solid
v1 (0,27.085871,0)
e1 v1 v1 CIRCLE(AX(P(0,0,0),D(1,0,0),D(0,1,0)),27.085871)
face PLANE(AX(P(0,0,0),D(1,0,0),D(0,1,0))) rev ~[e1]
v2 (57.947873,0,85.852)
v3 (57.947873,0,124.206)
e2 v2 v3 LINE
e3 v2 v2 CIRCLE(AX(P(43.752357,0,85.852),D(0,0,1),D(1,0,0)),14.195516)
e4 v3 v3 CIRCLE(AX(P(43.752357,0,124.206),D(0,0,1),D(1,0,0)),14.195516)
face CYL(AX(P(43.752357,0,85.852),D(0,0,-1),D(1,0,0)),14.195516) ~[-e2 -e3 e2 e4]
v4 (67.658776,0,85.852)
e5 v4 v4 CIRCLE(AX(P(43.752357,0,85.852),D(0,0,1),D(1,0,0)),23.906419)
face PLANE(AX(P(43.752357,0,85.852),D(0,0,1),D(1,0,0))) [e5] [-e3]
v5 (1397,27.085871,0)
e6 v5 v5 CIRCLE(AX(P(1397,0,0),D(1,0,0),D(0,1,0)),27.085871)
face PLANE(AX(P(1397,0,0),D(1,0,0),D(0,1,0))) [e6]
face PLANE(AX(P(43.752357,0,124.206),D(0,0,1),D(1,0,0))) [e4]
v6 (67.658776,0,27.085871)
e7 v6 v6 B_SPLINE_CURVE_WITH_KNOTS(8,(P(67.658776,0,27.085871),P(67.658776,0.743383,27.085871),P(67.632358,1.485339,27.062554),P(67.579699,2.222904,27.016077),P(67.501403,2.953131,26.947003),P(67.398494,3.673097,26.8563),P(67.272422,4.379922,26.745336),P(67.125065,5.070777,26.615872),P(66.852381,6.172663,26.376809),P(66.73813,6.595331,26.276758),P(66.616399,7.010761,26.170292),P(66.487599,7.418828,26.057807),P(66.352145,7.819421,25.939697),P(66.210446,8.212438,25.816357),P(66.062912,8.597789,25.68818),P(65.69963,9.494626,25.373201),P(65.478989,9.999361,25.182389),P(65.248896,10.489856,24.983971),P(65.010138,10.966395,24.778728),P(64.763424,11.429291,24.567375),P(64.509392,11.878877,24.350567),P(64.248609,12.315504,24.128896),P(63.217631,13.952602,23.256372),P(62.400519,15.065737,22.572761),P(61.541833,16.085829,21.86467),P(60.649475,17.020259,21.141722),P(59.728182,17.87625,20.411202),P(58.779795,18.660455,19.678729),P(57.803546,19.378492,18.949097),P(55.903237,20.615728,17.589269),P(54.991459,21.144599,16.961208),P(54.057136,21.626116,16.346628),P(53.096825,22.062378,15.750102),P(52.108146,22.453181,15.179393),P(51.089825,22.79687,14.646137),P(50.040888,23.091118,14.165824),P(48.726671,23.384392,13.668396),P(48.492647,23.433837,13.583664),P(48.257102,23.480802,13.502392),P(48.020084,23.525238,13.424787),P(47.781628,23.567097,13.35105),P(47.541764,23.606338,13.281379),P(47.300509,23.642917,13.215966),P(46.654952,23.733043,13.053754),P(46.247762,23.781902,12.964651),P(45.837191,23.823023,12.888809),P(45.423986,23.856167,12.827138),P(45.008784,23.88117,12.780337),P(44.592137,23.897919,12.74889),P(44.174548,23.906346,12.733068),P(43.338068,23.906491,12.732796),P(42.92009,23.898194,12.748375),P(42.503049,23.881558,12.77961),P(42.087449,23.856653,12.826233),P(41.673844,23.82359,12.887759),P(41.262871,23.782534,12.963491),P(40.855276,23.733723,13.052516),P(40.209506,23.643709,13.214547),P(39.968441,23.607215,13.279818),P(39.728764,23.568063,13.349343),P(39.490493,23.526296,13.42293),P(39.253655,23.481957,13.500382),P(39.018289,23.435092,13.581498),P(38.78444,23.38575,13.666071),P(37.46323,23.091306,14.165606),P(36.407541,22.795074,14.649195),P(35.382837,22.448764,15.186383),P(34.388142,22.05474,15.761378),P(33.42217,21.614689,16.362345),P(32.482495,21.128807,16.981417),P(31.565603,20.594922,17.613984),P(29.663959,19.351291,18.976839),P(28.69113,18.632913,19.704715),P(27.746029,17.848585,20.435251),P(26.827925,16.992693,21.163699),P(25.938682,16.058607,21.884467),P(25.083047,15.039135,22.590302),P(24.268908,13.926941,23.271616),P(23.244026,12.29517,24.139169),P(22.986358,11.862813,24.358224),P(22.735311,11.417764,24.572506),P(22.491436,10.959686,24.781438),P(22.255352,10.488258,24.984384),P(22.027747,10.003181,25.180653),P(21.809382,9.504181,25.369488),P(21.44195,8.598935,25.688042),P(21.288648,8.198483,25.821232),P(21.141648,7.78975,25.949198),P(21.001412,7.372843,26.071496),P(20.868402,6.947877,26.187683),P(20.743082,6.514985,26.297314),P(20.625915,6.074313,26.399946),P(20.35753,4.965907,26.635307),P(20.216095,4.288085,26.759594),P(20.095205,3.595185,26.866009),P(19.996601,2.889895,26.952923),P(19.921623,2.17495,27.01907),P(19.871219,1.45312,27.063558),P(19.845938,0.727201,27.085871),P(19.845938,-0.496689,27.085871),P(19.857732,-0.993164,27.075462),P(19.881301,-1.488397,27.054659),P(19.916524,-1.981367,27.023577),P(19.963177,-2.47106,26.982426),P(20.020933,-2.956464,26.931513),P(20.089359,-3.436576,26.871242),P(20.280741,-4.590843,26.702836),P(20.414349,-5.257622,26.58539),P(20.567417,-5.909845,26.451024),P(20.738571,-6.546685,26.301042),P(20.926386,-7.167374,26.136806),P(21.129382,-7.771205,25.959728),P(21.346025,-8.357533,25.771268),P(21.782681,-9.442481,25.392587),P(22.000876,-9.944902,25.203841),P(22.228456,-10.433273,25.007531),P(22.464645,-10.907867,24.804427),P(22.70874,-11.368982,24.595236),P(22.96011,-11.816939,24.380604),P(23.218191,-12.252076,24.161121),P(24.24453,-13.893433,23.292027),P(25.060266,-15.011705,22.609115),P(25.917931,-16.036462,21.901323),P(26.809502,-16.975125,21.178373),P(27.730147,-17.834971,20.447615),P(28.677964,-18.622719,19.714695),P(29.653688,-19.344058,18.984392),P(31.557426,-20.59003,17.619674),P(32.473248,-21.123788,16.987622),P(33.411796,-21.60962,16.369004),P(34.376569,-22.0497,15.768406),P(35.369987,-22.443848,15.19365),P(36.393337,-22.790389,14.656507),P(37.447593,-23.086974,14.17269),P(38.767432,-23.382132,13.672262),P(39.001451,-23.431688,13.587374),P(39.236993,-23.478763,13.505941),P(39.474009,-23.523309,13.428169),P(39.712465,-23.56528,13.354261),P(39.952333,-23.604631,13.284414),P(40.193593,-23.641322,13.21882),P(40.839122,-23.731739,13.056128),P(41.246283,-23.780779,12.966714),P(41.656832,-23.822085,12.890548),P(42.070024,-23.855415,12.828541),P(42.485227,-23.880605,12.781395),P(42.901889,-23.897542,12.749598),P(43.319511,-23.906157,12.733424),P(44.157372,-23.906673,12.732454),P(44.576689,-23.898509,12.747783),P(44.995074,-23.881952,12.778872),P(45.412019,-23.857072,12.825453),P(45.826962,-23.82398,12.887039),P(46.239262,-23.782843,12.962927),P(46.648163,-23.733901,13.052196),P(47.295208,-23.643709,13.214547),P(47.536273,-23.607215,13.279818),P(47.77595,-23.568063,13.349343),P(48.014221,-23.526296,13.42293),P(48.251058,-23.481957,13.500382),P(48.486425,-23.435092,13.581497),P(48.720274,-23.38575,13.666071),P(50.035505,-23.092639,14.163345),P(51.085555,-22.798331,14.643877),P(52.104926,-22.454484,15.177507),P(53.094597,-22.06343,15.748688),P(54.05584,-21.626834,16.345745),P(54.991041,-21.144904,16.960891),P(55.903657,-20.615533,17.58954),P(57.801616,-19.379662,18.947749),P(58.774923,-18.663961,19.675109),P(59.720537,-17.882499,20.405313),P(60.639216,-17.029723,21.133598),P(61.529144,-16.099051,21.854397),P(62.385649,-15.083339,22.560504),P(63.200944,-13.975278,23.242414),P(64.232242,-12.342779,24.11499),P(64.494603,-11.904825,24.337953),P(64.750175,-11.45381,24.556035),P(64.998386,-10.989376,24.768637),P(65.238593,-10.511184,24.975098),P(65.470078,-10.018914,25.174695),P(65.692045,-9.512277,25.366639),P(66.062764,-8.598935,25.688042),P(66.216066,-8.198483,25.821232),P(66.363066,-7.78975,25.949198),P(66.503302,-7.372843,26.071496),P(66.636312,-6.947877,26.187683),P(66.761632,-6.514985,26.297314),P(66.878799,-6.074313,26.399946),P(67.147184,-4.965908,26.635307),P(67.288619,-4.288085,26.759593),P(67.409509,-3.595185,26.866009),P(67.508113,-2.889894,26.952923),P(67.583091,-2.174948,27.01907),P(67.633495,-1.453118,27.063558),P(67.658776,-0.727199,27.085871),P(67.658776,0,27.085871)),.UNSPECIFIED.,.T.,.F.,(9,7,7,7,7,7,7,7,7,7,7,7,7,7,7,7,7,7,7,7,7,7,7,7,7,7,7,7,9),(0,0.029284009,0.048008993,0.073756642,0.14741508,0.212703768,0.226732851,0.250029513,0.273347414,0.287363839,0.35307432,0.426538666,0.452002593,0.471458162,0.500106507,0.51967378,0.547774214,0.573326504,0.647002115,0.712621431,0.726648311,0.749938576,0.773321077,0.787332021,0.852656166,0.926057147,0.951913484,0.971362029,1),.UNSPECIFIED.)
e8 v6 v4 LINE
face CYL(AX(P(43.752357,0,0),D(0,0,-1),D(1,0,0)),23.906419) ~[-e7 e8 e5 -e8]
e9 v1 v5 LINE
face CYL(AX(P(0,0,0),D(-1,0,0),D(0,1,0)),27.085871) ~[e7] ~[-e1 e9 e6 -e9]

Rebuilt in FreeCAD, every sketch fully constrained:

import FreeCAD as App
import Part
import Sketcher

V = App.Vector
Q = App.Units.Quantity

doc = App.newDocument("Part")
body = doc.addObject("PartDesign::Body", "Body")

# Sketch on YZ plane
sketch1 = body.newObject("Sketcher::SketchObject", "Sketch")
sketch1.AttachmentSupport = (doc.getObject("YZ_Plane"), [""])
sketch1.MapMode = "FlatFace"
sketch1.addGeometry(Part.Circle(V(0, 0, 0), V(0, 0, 1), 27), False)
sketch1.addConstraint([
    Sketcher.Constraint("Coincident", 0, 3, -1, 1),
    Sketcher.Constraint("Diameter", 0, Q("54.171742 mm")),
])
pad1 = body.newObject("PartDesign::Pad", "Pad")
pad1.Profile = sketch1
pad1.Length = Q("55 in")

# Sketch on XY plane
sketch2 = body.newObject("Sketcher::SketchObject", "Sketch001")
sketch2.AttachmentSupport = (doc.getObject("XY_Plane"), [""])
sketch2.MapMode = "FlatFace"
sketch2.addGeometry(Part.Circle(V(44, 0, 0), V(0, 0, 1), 24), False)
sketch2.addConstraint([
    Sketcher.Constraint("PointOnObject", 0, 3, -1),
    Sketcher.Constraint("Diameter", 0, Q("47.812838 mm")),
    Sketcher.Constraint("DistanceX", -1, 1, 0, 3, Q("43.752357 mm")),
])
pad2 = body.newObject("PartDesign::Pad", "Pad001")
pad2.Profile = sketch2
pad2.Length = Q("3.38 in")

# Sketch on XY plane
sketch3 = body.newObject("Sketcher::SketchObject", "Sketch002")
sketch3.AttachmentSupport = (doc.getObject("XY_Plane"), [""])
sketch3.MapMode = "FlatFace"
sketch3.AttachmentOffset = App.Placement(V(0, 0, 3.38 * 25.4), App.Rotation())
sketch3.addGeometry(Part.Circle(V(44, 0, 0), V(0, 0, 1), 14), False)
sketch3.addConstraint([
    Sketcher.Constraint("PointOnObject", 0, 3, -1),
    Sketcher.Constraint("Diameter", 0, Q("28.391032 mm")),
    Sketcher.Constraint("DistanceX", -1, 1, 0, 3, Q("43.752357 mm")),
])
pad3 = body.newObject("PartDesign::Pad", "Pad002")
pad3.Profile = sketch3
pad3.Length = Q("1.51 in")

doc.recompute()
